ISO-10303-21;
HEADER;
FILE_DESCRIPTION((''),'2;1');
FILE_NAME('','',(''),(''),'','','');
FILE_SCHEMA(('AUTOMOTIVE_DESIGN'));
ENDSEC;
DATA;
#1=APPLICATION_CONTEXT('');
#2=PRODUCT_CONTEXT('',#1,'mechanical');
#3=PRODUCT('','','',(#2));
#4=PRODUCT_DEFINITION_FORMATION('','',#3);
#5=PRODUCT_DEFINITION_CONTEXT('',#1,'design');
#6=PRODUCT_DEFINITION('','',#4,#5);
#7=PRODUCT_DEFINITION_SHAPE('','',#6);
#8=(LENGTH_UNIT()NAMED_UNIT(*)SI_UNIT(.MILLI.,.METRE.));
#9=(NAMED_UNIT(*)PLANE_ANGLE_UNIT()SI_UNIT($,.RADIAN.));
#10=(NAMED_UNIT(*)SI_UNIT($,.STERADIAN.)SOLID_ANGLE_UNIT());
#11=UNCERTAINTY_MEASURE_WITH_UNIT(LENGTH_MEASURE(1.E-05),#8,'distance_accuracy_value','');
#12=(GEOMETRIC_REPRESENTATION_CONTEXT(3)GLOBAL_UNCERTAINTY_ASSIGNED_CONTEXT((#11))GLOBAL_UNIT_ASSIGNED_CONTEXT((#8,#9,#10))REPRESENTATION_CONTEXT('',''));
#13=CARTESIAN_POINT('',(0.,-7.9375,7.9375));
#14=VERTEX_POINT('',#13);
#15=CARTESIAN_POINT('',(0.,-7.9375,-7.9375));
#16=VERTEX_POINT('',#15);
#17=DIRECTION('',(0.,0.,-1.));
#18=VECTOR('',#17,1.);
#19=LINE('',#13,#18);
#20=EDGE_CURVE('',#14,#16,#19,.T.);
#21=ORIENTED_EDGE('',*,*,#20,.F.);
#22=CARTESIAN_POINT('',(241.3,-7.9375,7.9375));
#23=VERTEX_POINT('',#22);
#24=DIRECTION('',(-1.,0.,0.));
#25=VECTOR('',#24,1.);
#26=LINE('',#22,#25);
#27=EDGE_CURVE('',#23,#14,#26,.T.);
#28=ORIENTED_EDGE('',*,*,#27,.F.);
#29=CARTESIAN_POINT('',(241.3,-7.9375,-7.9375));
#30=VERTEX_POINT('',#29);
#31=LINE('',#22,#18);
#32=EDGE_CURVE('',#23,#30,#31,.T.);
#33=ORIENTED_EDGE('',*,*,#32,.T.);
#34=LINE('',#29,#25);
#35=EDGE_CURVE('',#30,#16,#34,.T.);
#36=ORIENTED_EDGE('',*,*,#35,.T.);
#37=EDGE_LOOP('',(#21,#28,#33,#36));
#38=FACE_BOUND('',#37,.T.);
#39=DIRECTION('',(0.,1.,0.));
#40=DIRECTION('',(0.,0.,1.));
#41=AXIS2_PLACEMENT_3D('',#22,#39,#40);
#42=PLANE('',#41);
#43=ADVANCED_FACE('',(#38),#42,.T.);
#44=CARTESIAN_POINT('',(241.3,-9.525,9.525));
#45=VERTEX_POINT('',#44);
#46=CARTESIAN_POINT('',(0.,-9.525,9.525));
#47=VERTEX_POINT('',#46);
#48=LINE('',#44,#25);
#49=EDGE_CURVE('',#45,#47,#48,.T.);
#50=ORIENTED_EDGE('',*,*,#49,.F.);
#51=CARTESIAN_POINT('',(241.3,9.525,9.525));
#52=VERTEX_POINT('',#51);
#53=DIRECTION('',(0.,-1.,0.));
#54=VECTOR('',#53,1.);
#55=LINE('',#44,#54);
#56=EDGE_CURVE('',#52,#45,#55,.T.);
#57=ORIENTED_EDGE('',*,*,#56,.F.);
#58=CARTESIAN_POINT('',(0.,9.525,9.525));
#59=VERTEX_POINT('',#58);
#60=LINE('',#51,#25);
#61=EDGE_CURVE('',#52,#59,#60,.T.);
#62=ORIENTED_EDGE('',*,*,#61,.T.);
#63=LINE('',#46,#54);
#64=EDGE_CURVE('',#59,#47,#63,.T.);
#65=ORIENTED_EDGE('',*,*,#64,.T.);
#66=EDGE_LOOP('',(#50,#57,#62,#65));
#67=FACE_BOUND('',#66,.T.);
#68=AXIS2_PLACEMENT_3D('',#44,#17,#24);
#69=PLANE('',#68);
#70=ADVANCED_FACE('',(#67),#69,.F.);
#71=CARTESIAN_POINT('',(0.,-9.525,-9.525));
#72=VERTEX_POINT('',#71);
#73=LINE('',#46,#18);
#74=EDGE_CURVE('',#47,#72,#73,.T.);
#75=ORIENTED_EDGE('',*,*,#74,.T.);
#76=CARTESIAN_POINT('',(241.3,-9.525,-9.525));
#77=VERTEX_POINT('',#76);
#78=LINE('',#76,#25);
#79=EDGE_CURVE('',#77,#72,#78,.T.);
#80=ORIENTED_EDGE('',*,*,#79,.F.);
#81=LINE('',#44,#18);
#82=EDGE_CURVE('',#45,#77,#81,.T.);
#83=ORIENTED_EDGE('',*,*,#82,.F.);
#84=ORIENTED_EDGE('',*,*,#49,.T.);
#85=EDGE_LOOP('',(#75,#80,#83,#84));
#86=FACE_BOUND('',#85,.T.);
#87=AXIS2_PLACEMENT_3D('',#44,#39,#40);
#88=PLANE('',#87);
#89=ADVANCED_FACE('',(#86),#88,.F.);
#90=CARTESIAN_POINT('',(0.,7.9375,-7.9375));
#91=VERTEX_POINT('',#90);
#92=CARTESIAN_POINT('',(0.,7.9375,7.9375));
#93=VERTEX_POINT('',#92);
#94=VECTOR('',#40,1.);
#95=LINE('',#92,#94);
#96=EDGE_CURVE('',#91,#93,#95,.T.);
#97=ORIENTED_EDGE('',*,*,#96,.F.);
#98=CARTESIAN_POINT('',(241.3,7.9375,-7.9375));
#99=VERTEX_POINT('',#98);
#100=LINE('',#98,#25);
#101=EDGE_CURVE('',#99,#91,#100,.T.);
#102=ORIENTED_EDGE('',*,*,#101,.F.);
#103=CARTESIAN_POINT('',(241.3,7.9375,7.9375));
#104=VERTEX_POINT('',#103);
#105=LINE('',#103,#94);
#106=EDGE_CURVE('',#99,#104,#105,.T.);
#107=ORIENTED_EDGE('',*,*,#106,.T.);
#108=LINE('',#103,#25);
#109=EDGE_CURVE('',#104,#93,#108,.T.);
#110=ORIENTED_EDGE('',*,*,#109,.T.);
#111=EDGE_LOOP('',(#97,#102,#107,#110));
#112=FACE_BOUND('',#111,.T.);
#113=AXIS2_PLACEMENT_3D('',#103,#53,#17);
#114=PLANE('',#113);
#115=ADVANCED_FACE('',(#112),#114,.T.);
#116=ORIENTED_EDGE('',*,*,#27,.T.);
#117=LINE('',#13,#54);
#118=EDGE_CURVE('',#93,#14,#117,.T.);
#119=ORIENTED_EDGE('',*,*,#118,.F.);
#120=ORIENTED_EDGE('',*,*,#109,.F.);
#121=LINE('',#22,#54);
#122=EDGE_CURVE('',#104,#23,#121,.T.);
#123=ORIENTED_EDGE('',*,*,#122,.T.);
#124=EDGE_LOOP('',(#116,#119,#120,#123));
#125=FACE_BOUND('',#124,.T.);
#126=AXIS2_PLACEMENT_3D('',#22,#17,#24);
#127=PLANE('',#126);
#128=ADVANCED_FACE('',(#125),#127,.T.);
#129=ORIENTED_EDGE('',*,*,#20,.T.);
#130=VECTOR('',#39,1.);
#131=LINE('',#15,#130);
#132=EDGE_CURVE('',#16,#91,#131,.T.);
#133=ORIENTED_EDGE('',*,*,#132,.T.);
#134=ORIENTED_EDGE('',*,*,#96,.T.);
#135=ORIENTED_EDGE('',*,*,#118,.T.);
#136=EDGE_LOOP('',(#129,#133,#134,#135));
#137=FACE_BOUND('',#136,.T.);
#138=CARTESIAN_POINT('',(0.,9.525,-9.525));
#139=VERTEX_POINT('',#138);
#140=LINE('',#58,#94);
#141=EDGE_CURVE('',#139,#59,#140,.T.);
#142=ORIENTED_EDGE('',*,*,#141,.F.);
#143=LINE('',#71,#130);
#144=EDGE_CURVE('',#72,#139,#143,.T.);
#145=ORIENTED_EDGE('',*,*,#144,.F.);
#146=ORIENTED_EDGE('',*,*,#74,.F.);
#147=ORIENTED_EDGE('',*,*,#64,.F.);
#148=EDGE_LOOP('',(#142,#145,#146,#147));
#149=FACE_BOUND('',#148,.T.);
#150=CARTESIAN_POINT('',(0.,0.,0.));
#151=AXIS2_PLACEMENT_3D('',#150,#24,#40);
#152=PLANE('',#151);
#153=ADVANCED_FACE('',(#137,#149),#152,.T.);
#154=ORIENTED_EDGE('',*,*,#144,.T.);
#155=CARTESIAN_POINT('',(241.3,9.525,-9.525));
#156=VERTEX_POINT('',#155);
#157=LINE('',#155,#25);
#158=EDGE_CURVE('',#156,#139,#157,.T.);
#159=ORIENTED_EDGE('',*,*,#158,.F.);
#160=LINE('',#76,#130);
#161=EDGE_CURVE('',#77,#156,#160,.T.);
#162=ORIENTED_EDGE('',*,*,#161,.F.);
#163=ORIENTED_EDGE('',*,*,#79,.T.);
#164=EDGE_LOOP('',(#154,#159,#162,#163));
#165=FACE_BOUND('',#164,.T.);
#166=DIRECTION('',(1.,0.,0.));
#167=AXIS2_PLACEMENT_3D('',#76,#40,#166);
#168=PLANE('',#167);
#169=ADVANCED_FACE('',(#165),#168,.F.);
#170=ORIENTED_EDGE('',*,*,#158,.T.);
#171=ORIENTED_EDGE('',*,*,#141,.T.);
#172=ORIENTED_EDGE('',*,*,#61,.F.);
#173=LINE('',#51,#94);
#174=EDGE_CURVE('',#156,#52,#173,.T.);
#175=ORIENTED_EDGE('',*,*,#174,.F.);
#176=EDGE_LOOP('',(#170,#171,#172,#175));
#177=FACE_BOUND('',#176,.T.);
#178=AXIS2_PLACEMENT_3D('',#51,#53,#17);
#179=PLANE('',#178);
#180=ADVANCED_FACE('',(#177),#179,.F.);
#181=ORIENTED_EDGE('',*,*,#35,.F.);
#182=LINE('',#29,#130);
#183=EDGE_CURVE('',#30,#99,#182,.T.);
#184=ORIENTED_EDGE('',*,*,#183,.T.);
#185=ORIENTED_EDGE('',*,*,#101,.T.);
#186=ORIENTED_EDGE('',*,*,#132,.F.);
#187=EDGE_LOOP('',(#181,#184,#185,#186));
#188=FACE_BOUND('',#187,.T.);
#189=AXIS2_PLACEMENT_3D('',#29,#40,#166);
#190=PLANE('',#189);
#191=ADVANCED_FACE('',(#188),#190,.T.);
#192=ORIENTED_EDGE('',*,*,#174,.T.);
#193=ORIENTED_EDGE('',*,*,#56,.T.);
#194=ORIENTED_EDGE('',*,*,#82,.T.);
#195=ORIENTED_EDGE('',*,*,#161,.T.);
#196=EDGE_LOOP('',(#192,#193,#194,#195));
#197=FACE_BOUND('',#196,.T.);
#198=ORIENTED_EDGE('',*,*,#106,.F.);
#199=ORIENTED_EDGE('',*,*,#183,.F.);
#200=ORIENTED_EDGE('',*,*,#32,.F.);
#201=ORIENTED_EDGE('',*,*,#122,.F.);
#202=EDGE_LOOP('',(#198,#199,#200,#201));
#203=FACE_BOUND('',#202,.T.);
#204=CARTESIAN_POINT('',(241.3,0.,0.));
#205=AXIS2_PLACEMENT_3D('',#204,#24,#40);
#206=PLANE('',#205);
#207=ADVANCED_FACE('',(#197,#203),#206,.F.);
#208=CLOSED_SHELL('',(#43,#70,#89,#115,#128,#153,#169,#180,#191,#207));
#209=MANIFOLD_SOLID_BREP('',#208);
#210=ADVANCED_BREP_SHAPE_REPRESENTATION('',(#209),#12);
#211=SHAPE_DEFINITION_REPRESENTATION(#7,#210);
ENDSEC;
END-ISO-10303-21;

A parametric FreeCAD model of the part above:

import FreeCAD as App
import Part
import Sketcher

V = App.Vector
Q = App.Units.Quantity


def add_polygon(sketch, points):
    """Adds a closed chain of lines whose ends are joined by coincident constraints."""
    first, n = sketch.GeometryCount, len(points)
    for a, b in zip(points, points[1:] + points[:1]):
        sketch.addGeometry(Part.LineSegment(App.Vector(*a, 0), App.Vector(*b, 0)), False)
    for i in range(n):
        sketch.addConstraint(Sketcher.Constraint("Coincident", first + i, 2, first + (i + 1) % n, 1))

doc = App.newDocument("Part")
params = doc.addObject("Spreadsheet::Sheet", "Params")
for row, (alias, value) in enumerate([
    ("sketch1_width", "0.75 in"),
    ("sketch1_width2", "0.625 in"),
    ("pad1_length", "9.5 in"),
], start=1):
    params.set(f"A{row}", alias)
    params.set(f"B{row}", "=" + value)
    params.setAlias(f"B{row}", alias)

body = doc.addObject("PartDesign::Body", "Body")

sketch1 = doc.addObject("Sketcher::SketchObject", "Sketch")
body.addObject(sketch1)
sketch1.AttachmentSupport = (doc.YZ_Plane, [""])
sketch1.MapMode = "FlatFace"
add_polygon(sketch1, [(9.525, 9.525), (-9.525, 9.525), (-9.525, -9.525), (9.525, -9.525)])
add_polygon(sketch1, [(-7.9375, -7.9375), (-7.9375, 7.9375), (7.9375, 7.9375), (7.9375, -7.9375)])
sketch1.addConstraint([
    Sketcher.Constraint("Horizontal", 0),
    Sketcher.Constraint("Vertical", 1),
    Sketcher.Constraint("Horizontal", 2),
    Sketcher.Constraint("Vertical", 3),
    Sketcher.Constraint("Vertical", 4),
    Sketcher.Constraint("Horizontal", 5),
    Sketcher.Constraint("Vertical", 6),
    Sketcher.Constraint("Horizontal", 7),
    Sketcher.Constraint("Symmetric", 0, 2, 2, 2, -1, 1),
    Sketcher.Constraint("Symmetric", 4, 2, 6, 2, -1, 1),
    Sketcher.Constraint("Equal", 2, 1),
    Sketcher.Constraint("Equal", 7, 4),
    Sketcher.Constraint("DistanceX", 0, 2, 0, 1, Q("0.75 in")),
    Sketcher.Constraint("DistanceX", 5, 1, 5, 2, Q("0.625 in")),
])
sketch1.setExpression("Constraints[20]", "Params.sketch1_width")
sketch1.setExpression("Constraints[21]", "Params.sketch1_width2")
pad1 = doc.addObject("PartDesign::Pad", "Pad")
body.addObject(pad1)
pad1.Profile = sketch1
pad1.setExpression("Length", "Params.pad1_length")

doc.recompute()
